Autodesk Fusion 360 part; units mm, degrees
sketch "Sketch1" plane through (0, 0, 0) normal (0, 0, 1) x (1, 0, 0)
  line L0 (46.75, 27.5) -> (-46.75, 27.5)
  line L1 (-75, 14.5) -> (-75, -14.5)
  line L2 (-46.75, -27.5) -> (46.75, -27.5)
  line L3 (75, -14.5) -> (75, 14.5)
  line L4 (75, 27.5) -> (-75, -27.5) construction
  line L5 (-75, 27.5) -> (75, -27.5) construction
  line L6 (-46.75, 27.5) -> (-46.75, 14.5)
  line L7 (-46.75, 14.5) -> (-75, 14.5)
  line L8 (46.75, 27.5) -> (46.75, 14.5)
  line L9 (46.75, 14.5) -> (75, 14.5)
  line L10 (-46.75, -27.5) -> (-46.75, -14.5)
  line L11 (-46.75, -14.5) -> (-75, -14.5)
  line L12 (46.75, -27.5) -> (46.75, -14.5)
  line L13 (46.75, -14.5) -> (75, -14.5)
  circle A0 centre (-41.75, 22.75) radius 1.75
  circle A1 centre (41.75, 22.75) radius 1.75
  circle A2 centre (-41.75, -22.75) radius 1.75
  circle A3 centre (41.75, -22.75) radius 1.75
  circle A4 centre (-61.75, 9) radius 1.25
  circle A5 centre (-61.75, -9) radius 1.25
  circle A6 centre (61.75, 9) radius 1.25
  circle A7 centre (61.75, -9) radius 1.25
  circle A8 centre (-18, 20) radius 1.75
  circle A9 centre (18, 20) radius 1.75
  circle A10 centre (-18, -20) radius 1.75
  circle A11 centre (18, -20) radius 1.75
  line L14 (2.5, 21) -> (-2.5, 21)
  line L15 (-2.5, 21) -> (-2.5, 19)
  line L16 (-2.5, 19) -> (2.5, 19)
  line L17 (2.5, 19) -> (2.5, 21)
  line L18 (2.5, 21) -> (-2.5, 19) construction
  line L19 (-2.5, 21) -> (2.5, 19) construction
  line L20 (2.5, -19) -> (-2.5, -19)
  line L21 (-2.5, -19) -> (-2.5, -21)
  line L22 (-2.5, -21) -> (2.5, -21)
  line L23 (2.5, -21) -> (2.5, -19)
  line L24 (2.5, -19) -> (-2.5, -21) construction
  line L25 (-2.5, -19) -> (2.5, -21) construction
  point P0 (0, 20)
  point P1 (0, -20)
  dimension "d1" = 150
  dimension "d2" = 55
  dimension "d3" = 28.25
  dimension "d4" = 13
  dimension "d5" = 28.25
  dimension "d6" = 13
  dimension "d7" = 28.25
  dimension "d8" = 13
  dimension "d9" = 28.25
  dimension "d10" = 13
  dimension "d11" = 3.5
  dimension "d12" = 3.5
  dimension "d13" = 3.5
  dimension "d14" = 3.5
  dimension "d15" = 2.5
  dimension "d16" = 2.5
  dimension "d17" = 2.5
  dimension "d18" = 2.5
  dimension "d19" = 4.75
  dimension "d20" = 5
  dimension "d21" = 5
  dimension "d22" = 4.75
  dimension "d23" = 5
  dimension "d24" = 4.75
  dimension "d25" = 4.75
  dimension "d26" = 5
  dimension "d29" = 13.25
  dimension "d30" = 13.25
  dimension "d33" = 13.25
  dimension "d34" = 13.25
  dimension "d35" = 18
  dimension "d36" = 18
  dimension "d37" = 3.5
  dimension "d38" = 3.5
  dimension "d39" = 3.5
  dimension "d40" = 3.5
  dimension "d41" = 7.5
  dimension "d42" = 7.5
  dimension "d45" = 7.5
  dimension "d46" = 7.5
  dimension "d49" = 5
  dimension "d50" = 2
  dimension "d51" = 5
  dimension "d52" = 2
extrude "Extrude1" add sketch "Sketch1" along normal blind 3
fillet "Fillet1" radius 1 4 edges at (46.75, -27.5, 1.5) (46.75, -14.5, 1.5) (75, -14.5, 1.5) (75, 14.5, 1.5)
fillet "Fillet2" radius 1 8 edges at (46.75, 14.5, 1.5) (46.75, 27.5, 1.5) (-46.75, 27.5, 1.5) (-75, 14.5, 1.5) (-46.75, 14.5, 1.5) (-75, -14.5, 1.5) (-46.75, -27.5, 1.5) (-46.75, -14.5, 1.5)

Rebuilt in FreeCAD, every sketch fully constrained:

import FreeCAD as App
import Part
import Sketcher


def edges_at(feature, points):
    """Names of the edges that pass closest to the given points."""
    edges = feature.Shape.Edges
    near = lambda p: min(range(len(edges)), key=lambda i: edges[i].distToShape(Part.Vertex(*p))[0])
    return sorted({f"Edge{near(p) + 1}" for p in points})

doc = App.newDocument("Part")
body = doc.addObject("PartDesign::Body", "Body")

# Sketch on XY plane
sketch1 = body.newObject("Sketcher::SketchObject", "Sketch")
sketch1.AttachmentSupport = (doc.getObject("XY_Plane"), [""])
sketch1.MapMode = "FlatFace"
sketch1.addGeometry(Part.LineSegment(App.Vector(46.75, 14.5, 0), App.Vector(46.75, 27.5, 0)), False)
sketch1.addGeometry(Part.LineSegment(App.Vector(46.75, 27.5, 0), App.Vector(-46.75, 27.5, 0)), False)
sketch1.addGeometry(Part.LineSegment(App.Vector(-46.75, 27.5, 0), App.Vector(-46.75, 14.5, 0)), False)
sketch1.addGeometry(Part.LineSegment(App.Vector(-46.75, 14.5, 0), App.Vector(-75, 14.5, 0)), False)
sketch1.addGeometry(Part.LineSegment(App.Vector(-75, 14.5, 0), App.Vector(-75, -14.5, 0)), False)
sketch1.addGeometry(Part.LineSegment(App.Vector(-75, -14.5, 0), App.Vector(-46.75, -14.5, 0)), False)
sketch1.addGeometry(Part.LineSegment(App.Vector(-46.75, -14.5, 0), App.Vector(-46.75, -27.5, 0)), False)
sketch1.addGeometry(Part.LineSegment(App.Vector(-46.75, -27.5, 0), App.Vector(46.75, -27.5, 0)), False)
sketch1.addGeometry(Part.LineSegment(App.Vector(46.75, -27.5, 0), App.Vector(46.75, -14.5, 0)), False)
sketch1.addGeometry(Part.LineSegment(App.Vector(46.75, -14.5, 0), App.Vector(75, -14.5, 0)), False)
sketch1.addGeometry(Part.LineSegment(App.Vector(75, -14.5, 0), App.Vector(75, 14.5, 0)), False)
sketch1.addGeometry(Part.LineSegment(App.Vector(75, 14.5, 0), App.Vector(46.75, 14.5, 0)), False)
sketch1.addGeometry(Part.Circle(App.Vector(-41.75, -22.75, 0), App.Vector(0, 0, 1), 1.75), False)
sketch1.addGeometry(Part.Circle(App.Vector(-18, -20, 0), App.Vector(0, 0, 1), 1.75), False)
sketch1.addGeometry(Part.Circle(App.Vector(-61.75, -9, 0), App.Vector(0, 0, 1), 1.25), False)
sketch1.addGeometry(Part.LineSegment(App.Vector(-2.5, -19, 0), App.Vector(2.5, -19, 0)), False)
sketch1.addGeometry(Part.LineSegment(App.Vector(2.5, -19, 0), App.Vector(2.5, -21, 0)), False)
sketch1.addGeometry(Part.LineSegment(App.Vector(2.5, -21, 0), App.Vector(-2.5, -21, 0)), False)
sketch1.addGeometry(Part.LineSegment(App.Vector(-2.5, -21, 0), App.Vector(-2.5, -19, 0)), False)
sketch1.addGeometry(Part.Circle(App.Vector(18, -20, 0), App.Vector(0, 0, 1), 1.75), False)
sketch1.addGeometry(Part.Circle(App.Vector(41.75, -22.75, 0), App.Vector(0, 0, 1), 1.75), False)
sketch1.addGeometry(Part.Circle(App.Vector(61.75, -9, 0), App.Vector(0, 0, 1), 1.25), False)
sketch1.addGeometry(Part.Circle(App.Vector(-61.75, 9, 0), App.Vector(0, 0, 1), 1.25), False)
sketch1.addGeometry(Part.Circle(App.Vector(-41.75, 22.75, 0), App.Vector(0, 0, 1), 1.75), False)
sketch1.addGeometry(Part.Circle(App.Vector(-18, 20, 0), App.Vector(0, 0, 1), 1.75), False)
sketch1.addGeometry(Part.Circle(App.Vector(61.75, 9, 0), App.Vector(0, 0, 1), 1.25), False)
sketch1.addGeometry(Part.LineSegment(App.Vector(-2.5, 21, 0), App.Vector(2.5, 21, 0)), False)
sketch1.addGeometry(Part.LineSegment(App.Vector(2.5, 21, 0), App.Vector(2.5, 19, 0)), False)
sketch1.addGeometry(Part.LineSegment(App.Vector(2.5, 19, 0), App.Vector(-2.5, 19, 0)), False)
sketch1.addGeometry(Part.LineSegment(App.Vector(-2.5, 19, 0), App.Vector(-2.5, 21, 0)), False)
sketch1.addGeometry(Part.Circle(App.Vector(18, 20, 0), App.Vector(0, 0, 1), 1.75), False)
sketch1.addGeometry(Part.Circle(App.Vector(41.75, 22.75, 0), App.Vector(0, 0, 1), 1.75), False)
sketch1.addConstraint(Sketcher.Constraint("Coincident", 0, 2, 1, 1))
sketch1.addConstraint(Sketcher.Constraint("Coincident", 1, 2, 2, 1))
sketch1.addConstraint(Sketcher.Constraint("Coincident", 2, 2, 3, 1))
sketch1.addConstraint(Sketcher.Constraint("Coincident", 3, 2, 4, 1))
sketch1.addConstraint(Sketcher.Constraint("Coincident", 4, 2, 5, 1))
sketch1.addConstraint(Sketcher.Constraint("Coincident", 5, 2, 6, 1))
sketch1.addConstraint(Sketcher.Constraint("Coincident", 6, 2, 7, 1))
sketch1.addConstraint(Sketcher.Constraint("Coincident", 7, 2, 8, 1))
sketch1.addConstraint(Sketcher.Constraint("Coincident", 8, 2, 9, 1))
sketch1.addConstraint(Sketcher.Constraint("Coincident", 9, 2, 10, 1))
sketch1.addConstraint(Sketcher.Constraint("Coincident", 10, 2, 11, 1))
sketch1.addConstraint(Sketcher.Constraint("Coincident", 11, 2, 0, 1))
sketch1.addConstraint(Sketcher.Constraint("Coincident", 15, 2, 16, 1))
sketch1.addConstraint(Sketcher.Constraint("Coincident", 16, 2, 17, 1))
sketch1.addConstraint(Sketcher.Constraint("Coincident", 17, 2, 18, 1))
sketch1.addConstraint(Sketcher.Constraint("Coincident", 18, 2, 15, 1))
sketch1.addConstraint(Sketcher.Constraint("Coincident", 26, 2, 27, 1))
sketch1.addConstraint(Sketcher.Constraint("Coincident", 27, 2, 28, 1))
sketch1.addConstraint(Sketcher.Constraint("Coincident", 28, 2, 29, 1))
sketch1.addConstraint(Sketcher.Constraint("Coincident", 29, 2, 26, 1))
sketch1.addConstraint(Sketcher.Constraint("Vertical", 0))
sketch1.addConstraint(Sketcher.Constraint("Horizontal", 1))
sketch1.addConstraint(Sketcher.Constraint("Vertical", 2))
sketch1.addConstraint(Sketcher.Constraint("Horizontal", 3))
sketch1.addConstraint(Sketcher.Constraint("Vertical", 4))
sketch1.addConstraint(Sketcher.Constraint("Horizontal", 5))
sketch1.addConstraint(Sketcher.Constraint("Vertical", 6))
sketch1.addConstraint(Sketcher.Constraint("Horizontal", 7))
sketch1.addConstraint(Sketcher.Constraint("Vertical", 8))
sketch1.addConstraint(Sketcher.Constraint("Horizontal", 9))
sketch1.addConstraint(Sketcher.Constraint("Vertical", 10))
sketch1.addConstraint(Sketcher.Constraint("Horizontal", 11))
sketch1.addConstraint(Sketcher.Constraint("Horizontal", 15))
sketch1.addConstraint(Sketcher.Constraint("Vertical", 16))
sketch1.addConstraint(Sketcher.Constraint("Horizontal", 17))
sketch1.addConstraint(Sketcher.Constraint("Vertical", 18))
sketch1.addConstraint(Sketcher.Constraint("Horizontal", 26))
sketch1.addConstraint(Sketcher.Constraint("Vertical", 27))
sketch1.addConstraint(Sketcher.Constraint("Horizontal", 28))
sketch1.addConstraint(Sketcher.Constraint("Vertical", 29))
sketch1.addConstraint(Sketcher.Constraint("Equal", 12, 13))
sketch1.addConstraint(Sketcher.Constraint("Equal", 13, 19))
sketch1.addConstraint(Sketcher.Constraint("Equal", 19, 20))
sketch1.addConstraint(Sketcher.Constraint("Equal", 14, 21))
sketch1.addConstraint(Sketcher.Constraint("Equal", 21, 22))
sketch1.addConstraint(Sketcher.Constraint("Equal", 20, 23))
sketch1.addConstraint(Sketcher.Constraint("Equal", 23, 24))
sketch1.addConstraint(Sketcher.Constraint("Equal", 22, 25))
sketch1.addConstraint(Sketcher.Constraint("Equal", 24, 30))
sketch1.addConstraint(Sketcher.Constraint("Equal", 30, 31))
sketch1.addConstraint(Sketcher.Constraint("Symmetric", 21, 3, 22, 3, -1, 1))
sketch1.addConstraint(Sketcher.Constraint("Symmetric", 20, 3, 23, 3, -1, 1))
sketch1.addConstraint(Sketcher.Constraint("Symmetric", 19, 3, 24, 3, -1, 1))
sketch1.addConstraint(Sketcher.Constraint("Symmetric", 14, 3, 25, 3, -1, 1))
sketch1.addConstraint(Sketcher.Constraint("Symmetric", 13, 3, 30, 3, -1, 1))
sketch1.addConstraint(Sketcher.Constraint("Symmetric", 12, 3, 31, 3, -1, 1))
sketch1.addConstraint(Sketcher.Constraint("Symmetric", 0, 2, 6, 2, -1, 1))
sketch1.addConstraint(Sketcher.Constraint("Symmetric", 2, 2, 8, 2, -1, 1))
sketch1.addConstraint(Sketcher.Constraint("Symmetric", 4, 2, 10, 2, -1, 1))
sketch1.addConstraint(Sketcher.Constraint("Symmetric", 17, 2, 26, 2, -1, 1))
sketch1.addConstraint(Sketcher.Constraint("Symmetric", 15, 2, 28, 2, -1, 1))
sketch1.addConstraint(Sketcher.Constraint("Symmetric", 13, 3, 19, 3, -2))
sketch1.addConstraint(Sketcher.Constraint("Symmetric", 12, 3, 20, 3, -2))
sketch1.addConstraint(Sketcher.Constraint("Symmetric", 14, 3, 21, 3, -2))
sketch1.addConstraint(Sketcher.Constraint("Symmetric", 5, 2, 8, 2, -2))
sketch1.addConstraint(Sketcher.Constraint("Vertical", 16, 2, 26, 2))
sketch1.addConstraint(Sketcher.Constraint("Diameter", 12, 3.5))
sketch1.addConstraint(Sketcher.Constraint("Diameter", 14, 2.5))
sketch1.addConstraint(Sketcher.Constraint("DistanceX", 15, 1, 15, 2, 5.0))
sketch1.addConstraint(Sketcher.Constraint("DistanceY", 0, 1, 0, 2, 13.0))
sketch1.addConstraint(Sketcher.Constraint("DistanceY", 16, 2, 16, 1, 2.0))
sketch1.addConstraint(Sketcher.Constraint("DistanceX", 13, 3, -1, 1, 18.0))
sketch1.addConstraint(Sketcher.Constraint("DistanceY", 14, 3, 22, 3, 18.0))
sketch1.addConstraint(Sketcher.Constraint("DistanceX", 31, 3, 0, 2, 5.0))
sketch1.addConstraint(Sketcher.Constraint("DistanceX", 3, 2, 3, 1, 28.25))
sketch1.addConstraint(Sketcher.Constraint("DistanceY", 30, 3, 0, 2, 7.5))
sketch1.addConstraint(Sketcher.Constraint("DistanceY", 4, 2, 4, 1, 29.0))
sketch1.addConstraint(Sketcher.Constraint("DistanceY", 31, 3, 0, 2, 4.75))
sketch1.addConstraint(Sketcher.Constraint("DistanceX", 3, 2, 22, 3, 13.25))
sketch1.addConstraint(Sketcher.Constraint("DistanceX", 1, 2, 1, 1, 93.5))
sketch1.addConstraint(Sketcher.Constraint("DistanceY", 15, 2, -1, 1, 19.0))
pad1 = body.newObject("PartDesign::Pad", "Pad")
pad1.Profile = sketch1
pad1.Length = 3
doc.recompute()

fillet = body.newObject("PartDesign::Fillet", "Fillet")
fillet.Base = (pad1, edges_at(pad1, [
    (46.75, -27.5, 1.5),
    (46.75, -14.5, 1.5),
    (75, -14.5, 1.5),
    (75, 14.5, 1.5),
]))
fillet.Radius = 1
doc.recompute()

fillet2 = body.newObject("PartDesign::Fillet", "Fillet001")
fillet2.Base = (fillet, edges_at(fillet, [
    (46.75, 14.5, 1.5),
    (46.75, 27.5, 1.5),
    (-46.75, 27.5, 1.5),
    (-75, 14.5, 1.5),
    (-46.75, 14.5, 1.5),
    (-75, -14.5, 1.5),
    (-46.75, -27.5, 1.5),
    (-46.75, -14.5, 1.5),
]))
fillet2.Radius = 1

doc.recompute()
